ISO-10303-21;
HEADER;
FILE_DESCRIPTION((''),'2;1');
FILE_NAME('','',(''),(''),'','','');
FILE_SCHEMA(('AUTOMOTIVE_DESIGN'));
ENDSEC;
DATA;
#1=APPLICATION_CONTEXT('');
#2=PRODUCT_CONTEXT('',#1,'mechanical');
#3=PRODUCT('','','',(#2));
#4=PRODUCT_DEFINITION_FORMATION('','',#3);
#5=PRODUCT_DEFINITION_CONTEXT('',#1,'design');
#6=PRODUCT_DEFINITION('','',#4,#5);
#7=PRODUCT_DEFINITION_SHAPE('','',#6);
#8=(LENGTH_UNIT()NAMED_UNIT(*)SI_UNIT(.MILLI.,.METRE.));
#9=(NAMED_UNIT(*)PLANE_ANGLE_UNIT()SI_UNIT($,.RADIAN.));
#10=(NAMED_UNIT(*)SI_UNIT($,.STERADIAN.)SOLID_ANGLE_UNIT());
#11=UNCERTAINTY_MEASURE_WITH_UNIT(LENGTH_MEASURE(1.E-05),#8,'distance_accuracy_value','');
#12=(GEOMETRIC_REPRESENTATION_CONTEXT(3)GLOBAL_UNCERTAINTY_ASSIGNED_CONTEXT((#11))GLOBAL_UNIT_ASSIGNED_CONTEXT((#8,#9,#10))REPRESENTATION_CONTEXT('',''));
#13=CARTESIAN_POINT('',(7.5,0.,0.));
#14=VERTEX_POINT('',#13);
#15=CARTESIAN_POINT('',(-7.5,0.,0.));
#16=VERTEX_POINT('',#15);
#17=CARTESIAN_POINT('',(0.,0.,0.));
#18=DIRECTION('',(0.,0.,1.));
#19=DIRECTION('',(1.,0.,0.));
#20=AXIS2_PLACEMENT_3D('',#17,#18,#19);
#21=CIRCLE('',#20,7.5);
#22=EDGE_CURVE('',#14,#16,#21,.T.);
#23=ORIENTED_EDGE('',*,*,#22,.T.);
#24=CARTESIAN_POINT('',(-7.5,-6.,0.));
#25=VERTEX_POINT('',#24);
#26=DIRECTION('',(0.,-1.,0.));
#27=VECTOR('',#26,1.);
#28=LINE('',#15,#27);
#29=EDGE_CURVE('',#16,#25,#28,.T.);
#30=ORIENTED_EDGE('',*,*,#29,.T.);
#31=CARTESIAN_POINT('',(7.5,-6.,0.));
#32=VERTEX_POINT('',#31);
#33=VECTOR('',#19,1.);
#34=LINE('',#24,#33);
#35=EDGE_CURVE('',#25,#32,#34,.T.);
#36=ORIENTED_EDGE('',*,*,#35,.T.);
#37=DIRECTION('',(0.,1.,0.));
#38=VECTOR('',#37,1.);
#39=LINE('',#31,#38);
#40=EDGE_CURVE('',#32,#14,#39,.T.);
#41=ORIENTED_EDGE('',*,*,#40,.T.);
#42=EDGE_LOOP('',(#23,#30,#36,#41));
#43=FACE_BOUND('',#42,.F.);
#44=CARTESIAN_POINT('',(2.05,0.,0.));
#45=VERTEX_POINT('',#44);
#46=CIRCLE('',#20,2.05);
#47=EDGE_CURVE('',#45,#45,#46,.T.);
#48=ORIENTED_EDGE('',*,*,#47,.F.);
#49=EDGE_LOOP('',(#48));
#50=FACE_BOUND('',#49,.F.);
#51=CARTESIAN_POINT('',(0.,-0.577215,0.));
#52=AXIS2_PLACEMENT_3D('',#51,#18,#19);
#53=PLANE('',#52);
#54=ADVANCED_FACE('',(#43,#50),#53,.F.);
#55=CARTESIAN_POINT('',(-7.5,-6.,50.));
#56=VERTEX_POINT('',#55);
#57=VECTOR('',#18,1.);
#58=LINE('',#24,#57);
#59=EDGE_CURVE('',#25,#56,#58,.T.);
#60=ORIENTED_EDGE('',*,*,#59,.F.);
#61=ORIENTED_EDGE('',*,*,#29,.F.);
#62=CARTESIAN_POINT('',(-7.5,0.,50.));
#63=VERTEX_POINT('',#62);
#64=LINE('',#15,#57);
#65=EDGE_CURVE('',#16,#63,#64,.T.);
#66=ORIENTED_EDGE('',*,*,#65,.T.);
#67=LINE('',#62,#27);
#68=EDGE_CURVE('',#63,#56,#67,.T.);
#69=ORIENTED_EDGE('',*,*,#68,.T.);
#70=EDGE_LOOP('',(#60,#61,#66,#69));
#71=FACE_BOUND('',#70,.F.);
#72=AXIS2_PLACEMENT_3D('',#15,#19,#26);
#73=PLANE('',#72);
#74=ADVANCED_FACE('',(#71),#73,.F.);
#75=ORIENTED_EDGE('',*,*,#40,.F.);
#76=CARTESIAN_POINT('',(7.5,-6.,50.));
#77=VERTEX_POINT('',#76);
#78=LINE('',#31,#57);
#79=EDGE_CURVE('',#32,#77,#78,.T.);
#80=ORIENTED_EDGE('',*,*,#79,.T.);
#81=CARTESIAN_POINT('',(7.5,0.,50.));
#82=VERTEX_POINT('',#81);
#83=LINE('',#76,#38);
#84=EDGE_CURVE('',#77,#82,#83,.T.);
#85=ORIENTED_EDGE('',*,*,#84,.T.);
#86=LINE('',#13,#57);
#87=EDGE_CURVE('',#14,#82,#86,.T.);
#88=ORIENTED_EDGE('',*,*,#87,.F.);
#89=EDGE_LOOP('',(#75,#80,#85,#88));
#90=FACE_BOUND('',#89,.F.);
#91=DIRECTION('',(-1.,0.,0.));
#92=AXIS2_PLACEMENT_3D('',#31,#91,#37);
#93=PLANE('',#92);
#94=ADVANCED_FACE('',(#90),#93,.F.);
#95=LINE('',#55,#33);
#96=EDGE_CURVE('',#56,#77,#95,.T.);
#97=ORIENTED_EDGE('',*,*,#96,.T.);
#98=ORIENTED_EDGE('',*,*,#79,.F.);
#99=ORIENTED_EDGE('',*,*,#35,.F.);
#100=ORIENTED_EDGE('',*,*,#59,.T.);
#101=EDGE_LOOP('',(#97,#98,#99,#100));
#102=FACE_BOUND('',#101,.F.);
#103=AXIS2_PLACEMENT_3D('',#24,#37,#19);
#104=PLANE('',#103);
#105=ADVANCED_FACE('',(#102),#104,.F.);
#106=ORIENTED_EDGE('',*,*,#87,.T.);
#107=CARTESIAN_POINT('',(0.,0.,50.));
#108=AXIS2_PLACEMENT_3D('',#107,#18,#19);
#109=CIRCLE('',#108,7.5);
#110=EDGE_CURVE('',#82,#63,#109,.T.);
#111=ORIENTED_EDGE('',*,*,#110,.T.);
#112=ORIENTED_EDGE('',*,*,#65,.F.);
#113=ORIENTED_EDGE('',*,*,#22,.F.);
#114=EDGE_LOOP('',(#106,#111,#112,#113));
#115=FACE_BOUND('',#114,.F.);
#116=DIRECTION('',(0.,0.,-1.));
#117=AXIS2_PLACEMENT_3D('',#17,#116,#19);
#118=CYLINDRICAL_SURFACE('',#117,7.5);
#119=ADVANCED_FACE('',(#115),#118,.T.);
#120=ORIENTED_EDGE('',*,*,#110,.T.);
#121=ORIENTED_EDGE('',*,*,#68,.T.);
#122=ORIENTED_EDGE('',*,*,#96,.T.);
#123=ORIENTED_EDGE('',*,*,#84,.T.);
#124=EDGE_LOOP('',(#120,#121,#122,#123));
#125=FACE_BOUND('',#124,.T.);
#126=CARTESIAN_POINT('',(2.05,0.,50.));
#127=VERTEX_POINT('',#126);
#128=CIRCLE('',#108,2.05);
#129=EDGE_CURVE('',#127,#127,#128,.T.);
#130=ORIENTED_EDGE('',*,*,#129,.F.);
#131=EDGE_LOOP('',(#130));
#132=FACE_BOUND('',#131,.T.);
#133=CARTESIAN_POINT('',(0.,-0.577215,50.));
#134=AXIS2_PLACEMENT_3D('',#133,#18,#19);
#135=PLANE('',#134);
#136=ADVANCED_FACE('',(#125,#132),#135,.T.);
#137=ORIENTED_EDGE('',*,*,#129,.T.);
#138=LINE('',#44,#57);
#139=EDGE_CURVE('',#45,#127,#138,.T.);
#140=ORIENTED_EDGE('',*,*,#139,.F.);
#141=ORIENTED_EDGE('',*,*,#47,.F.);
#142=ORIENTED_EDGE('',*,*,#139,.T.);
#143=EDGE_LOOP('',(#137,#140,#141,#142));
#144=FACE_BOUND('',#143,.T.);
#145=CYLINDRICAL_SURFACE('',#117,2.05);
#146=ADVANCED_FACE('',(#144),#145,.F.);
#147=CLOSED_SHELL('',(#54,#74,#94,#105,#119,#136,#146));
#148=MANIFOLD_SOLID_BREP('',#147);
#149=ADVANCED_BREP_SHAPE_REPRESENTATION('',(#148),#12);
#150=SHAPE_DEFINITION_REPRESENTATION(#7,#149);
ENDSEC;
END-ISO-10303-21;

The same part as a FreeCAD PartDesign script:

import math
import FreeCAD as App
import Part
import Sketcher

doc = App.newDocument("Part")
params = doc.addObject("Spreadsheet::Sheet", "Params")
for row, (alias, value) in enumerate([
    ("sketch1_diameter", "4.1 mm"),
    ("sketch1_radius", "7.5 mm"),
    ("sketch1_height", "6 mm"),
    ("pad1_length", "50 mm"),
], start=1):
    params.set(f"A{row}", alias)
    params.set(f"B{row}", "=" + value)
    params.setAlias(f"B{row}", alias)

body = doc.addObject("PartDesign::Body", "Body")

sketch1 = body.newObject("Sketcher::SketchObject", "Sketch")
sketch1.AttachmentSupport = (doc.getObject("XY_Plane"), [""])
sketch1.MapMode = "FlatFace"
sketch1.addGeometry([
    Part.ArcOfCircle(Part.Circle(App.Vector(0, 0, 0), App.Vector(0, 0, 1), 7.5), math.radians(0), math.radians(180)),
    Part.LineSegment(App.Vector(-7.5, 0, 0), App.Vector(-7.5, -6, 0)),
    Part.LineSegment(App.Vector(-7.5, -6, 0), App.Vector(7.5, -6, 0)),
    Part.LineSegment(App.Vector(7.5, -6, 0), App.Vector(7.5, 0, 0)),
    Part.Circle(App.Vector(0, 0, 0), App.Vector(0, 0, 1), 2),
], False)
sketch1.addConstraint([
    Sketcher.Constraint("Tangent", 0, 2, 1, 1),
    Sketcher.Constraint("Coincident", 1, 2, 2, 1),
    Sketcher.Constraint("Coincident", 2, 2, 3, 1),
    Sketcher.Constraint("Tangent", 3, 2, 0, 1),
    Sketcher.Constraint("Vertical", 1),
    Sketcher.Constraint("Horizontal", 2),
    Sketcher.Constraint("Vertical", 3),
    Sketcher.Constraint("Coincident", 0, 3, -1, 1),
    Sketcher.Constraint("Coincident", 4, 3, -1, 1),
    Sketcher.Constraint("Diameter", 4, 4.1),
    Sketcher.Constraint("Radius", 0, 7.5),
    Sketcher.Constraint("DistanceY", 1, 2, 1, 1, 6.0),
])
sketch1.setExpression("Constraints[9]", "Params.sketch1_diameter")
sketch1.setExpression("Constraints[10]", "Params.sketch1_radius")
sketch1.setExpression("Constraints[11]", "Params.sketch1_height")
pad1 = body.newObject("PartDesign::Pad", "Pad")
pad1.Profile = sketch1
pad1.setExpression("Length", "Params.pad1_length")

doc.recompute()
